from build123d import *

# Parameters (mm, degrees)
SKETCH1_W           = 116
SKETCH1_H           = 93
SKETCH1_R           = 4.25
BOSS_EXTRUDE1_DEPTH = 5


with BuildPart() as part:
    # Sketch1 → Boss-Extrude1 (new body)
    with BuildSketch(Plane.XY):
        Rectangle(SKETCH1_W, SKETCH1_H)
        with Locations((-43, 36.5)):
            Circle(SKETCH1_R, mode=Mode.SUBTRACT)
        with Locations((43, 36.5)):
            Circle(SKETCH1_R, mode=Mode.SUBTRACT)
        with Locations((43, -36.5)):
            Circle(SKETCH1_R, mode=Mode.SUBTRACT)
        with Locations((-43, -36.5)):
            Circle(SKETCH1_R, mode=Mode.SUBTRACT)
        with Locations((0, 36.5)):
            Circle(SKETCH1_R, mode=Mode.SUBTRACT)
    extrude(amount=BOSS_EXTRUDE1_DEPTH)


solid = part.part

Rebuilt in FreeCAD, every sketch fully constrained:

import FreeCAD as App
import Part
import Sketcher
Q = App.Units.Quantity

doc = App.newDocument("Part")
body = doc.addObject("PartDesign::Body", "Body")

# Sketch on XY plane
sketch1 = doc.addObject("Sketcher::SketchObject", "Sketch")
body.addObject(sketch1)
sketch1.AttachmentSupport = (doc.XY_Plane, [""])
sketch1.MapMode = "FlatFace"
sketch1.addGeometry([
    Part.LineSegment(App.Vector(-58, 46.5, 0), App.Vector(-58, -46.5, 0)),  # 0
    Part.LineSegment(App.Vector(-58, -46.5, 0), App.Vector(58, -46.5, 0)),  # 1
    Part.LineSegment(App.Vector(58, -46.5, 0), App.Vector(58, 46.5, 0)),  # 2
    Part.LineSegment(App.Vector(58, 46.5, 0), App.Vector(-58, 46.5, 0)),  # 3
    Part.Circle(App.Vector(-43, -36.5, 0), App.Vector(0, 0, 1), 4.25),  # 4
    Part.Circle(App.Vector(43, -36.5, 0), App.Vector(0, 0, 1), 4.25),  # 5
    Part.Circle(App.Vector(-43, 36.5, 0), App.Vector(0, 0, 1), 4.25),  # 6
    Part.Circle(App.Vector(0, 36.5, 0), App.Vector(0, 0, 1), 4.25),  # 7
    Part.Circle(App.Vector(43, 36.5, 0), App.Vector(0, 0, 1), 4.25),  # 8
], False)
sketch1.addConstraint([
    Sketcher.Constraint("Coincident", 0, 2, 1, 1),
    Sketcher.Constraint("Coincident", 1, 2, 2, 1),
    Sketcher.Constraint("Coincident", 2, 2, 3, 1),
    Sketcher.Constraint("Coincident", 3, 2, 0, 1),
    Sketcher.Constraint("Vertical", 0),
    Sketcher.Constraint("Horizontal", 1),
    Sketcher.Constraint("Vertical", 2),
    Sketcher.Constraint("Horizontal", 3),
    Sketcher.Constraint("Equal", 4, 5),
    Sketcher.Constraint("Equal", 5, 6),
    Sketcher.Constraint("Equal", 6, 7),
    Sketcher.Constraint("Equal", 7, 8),
    Sketcher.Constraint("Symmetric", 5, 3, 6, 3, -1, 1),
    Sketcher.Constraint("Symmetric", 4, 3, 8, 3, -1, 1),
    Sketcher.Constraint("Symmetric", 0, 2, 2, 2, -1, 1),
    Sketcher.Constraint("Symmetric", 4, 3, 5, 3, -2),
    Sketcher.Constraint("PointOnObject", 7, 3, -2),
    Sketcher.Constraint("Horizontal", 6, 3, 7, 3),
    Sketcher.Constraint("Diameter", 4, Q("8.5 mm")),
    Sketcher.Constraint("DistanceX", 1, 1, 1, 2, Q("116 mm")),
    Sketcher.Constraint("DistanceY", 0, 2, 0, 1, Q("93 mm")),
    Sketcher.Constraint("DistanceX", 4, 3, -1, 1, Q("43 mm")),
    Sketcher.Constraint("DistanceY", 4, 3, 6, 3, Q("73 mm")),
])
pad1 = doc.addObject("PartDesign::Pad", "Pad")
body.addObject(pad1)
pad1.Profile = sketch1
pad1.Length = 5

doc.recompute()
